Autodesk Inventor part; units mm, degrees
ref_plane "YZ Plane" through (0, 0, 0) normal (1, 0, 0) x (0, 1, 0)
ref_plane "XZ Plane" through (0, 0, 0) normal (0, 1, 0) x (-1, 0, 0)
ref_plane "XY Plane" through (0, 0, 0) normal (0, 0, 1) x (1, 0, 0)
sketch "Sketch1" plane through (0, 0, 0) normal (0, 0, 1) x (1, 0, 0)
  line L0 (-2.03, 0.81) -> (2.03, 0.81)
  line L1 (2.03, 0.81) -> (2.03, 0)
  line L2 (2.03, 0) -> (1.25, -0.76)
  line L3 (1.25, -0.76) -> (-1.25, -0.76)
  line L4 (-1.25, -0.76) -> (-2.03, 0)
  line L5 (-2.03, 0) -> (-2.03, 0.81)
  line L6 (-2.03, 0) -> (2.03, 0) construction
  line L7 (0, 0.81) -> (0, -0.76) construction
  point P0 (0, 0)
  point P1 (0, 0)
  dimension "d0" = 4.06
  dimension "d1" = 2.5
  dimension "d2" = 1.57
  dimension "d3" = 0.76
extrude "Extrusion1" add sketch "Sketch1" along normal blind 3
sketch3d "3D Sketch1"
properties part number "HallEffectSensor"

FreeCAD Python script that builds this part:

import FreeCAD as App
import Part
import Sketcher
from FreeCAD import Vector


def add_polygon(sketch, points):
    """Adds a closed chain of lines whose ends are joined by coincident constraints."""
    first, n = sketch.GeometryCount, len(points)
    for a, b in zip(points, points[1:] + points[:1]):
        sketch.addGeometry(Part.LineSegment(App.Vector(*a, 0), App.Vector(*b, 0)), False)
    for i in range(n):
        sketch.addConstraint(Sketcher.Constraint("Coincident", first + i, 2, first + (i + 1) % n, 1))

doc = App.newDocument("Part")
params = doc.addObject("Spreadsheet::Sheet", "Params")
for row, (alias, value) in enumerate([
    ("sketch1_width", "2.5 mm"),
    ("sketch1_width2", "4.06 mm"),
    ("pad1_length", "3 mm"),
], start=1):
    params.set(f"A{row}", alias)
    params.set(f"B{row}", "=" + value)
    params.setAlias(f"B{row}", alias)

body = doc.addObject("PartDesign::Body", "Body")

# Sketch on XY plane
sketch1 = body.newObject("Sketcher::SketchObject", "Sketch")
sketch1.AttachmentSupport = (doc.getObject("XY_Plane"), [""])
sketch1.MapMode = "FlatFace"
add_polygon(sketch1, [(2, 0.8), (-2, 0.8), (-2, 0), (-1.2, -0.8), (1.2, -0.8), (2, 0)])  # lines 0-5
sketch1.addConstraint([
    Sketcher.Constraint("Horizontal", 0),
    Sketcher.Constraint("Vertical", 1),
    Sketcher.Constraint("Horizontal", 3),
    Sketcher.Constraint("Vertical", 5),
    Sketcher.Constraint("Symmetric", 1, 2, 4, 2, -1, 1),
    Sketcher.Constraint("PointOnObject", 1, 2, -1),
    Sketcher.Constraint("Equal", 2, 4),
    Sketcher.Constraint("DistanceX", 3, 1, 3, 2, 2.5),
    Sketcher.Constraint("DistanceX", 0, 2, 0, 1, 4.06),
    Sketcher.Constraint("DistanceY", 2, 2, -1, 1, 0.76),
    Sketcher.Constraint("DistanceY", 2, 2, 0, 2, 1.57),
])
sketch1.setExpression("Constraints[13]", "Params.sketch1_width")
sketch1.setExpression("Constraints[14]", "Params.sketch1_width2")
pad1 = body.newObject("PartDesign::Pad", "Pad")
pad1.Profile = sketch1
pad1.setExpression("Length", "Params.pad1_length")

doc.recompute()
